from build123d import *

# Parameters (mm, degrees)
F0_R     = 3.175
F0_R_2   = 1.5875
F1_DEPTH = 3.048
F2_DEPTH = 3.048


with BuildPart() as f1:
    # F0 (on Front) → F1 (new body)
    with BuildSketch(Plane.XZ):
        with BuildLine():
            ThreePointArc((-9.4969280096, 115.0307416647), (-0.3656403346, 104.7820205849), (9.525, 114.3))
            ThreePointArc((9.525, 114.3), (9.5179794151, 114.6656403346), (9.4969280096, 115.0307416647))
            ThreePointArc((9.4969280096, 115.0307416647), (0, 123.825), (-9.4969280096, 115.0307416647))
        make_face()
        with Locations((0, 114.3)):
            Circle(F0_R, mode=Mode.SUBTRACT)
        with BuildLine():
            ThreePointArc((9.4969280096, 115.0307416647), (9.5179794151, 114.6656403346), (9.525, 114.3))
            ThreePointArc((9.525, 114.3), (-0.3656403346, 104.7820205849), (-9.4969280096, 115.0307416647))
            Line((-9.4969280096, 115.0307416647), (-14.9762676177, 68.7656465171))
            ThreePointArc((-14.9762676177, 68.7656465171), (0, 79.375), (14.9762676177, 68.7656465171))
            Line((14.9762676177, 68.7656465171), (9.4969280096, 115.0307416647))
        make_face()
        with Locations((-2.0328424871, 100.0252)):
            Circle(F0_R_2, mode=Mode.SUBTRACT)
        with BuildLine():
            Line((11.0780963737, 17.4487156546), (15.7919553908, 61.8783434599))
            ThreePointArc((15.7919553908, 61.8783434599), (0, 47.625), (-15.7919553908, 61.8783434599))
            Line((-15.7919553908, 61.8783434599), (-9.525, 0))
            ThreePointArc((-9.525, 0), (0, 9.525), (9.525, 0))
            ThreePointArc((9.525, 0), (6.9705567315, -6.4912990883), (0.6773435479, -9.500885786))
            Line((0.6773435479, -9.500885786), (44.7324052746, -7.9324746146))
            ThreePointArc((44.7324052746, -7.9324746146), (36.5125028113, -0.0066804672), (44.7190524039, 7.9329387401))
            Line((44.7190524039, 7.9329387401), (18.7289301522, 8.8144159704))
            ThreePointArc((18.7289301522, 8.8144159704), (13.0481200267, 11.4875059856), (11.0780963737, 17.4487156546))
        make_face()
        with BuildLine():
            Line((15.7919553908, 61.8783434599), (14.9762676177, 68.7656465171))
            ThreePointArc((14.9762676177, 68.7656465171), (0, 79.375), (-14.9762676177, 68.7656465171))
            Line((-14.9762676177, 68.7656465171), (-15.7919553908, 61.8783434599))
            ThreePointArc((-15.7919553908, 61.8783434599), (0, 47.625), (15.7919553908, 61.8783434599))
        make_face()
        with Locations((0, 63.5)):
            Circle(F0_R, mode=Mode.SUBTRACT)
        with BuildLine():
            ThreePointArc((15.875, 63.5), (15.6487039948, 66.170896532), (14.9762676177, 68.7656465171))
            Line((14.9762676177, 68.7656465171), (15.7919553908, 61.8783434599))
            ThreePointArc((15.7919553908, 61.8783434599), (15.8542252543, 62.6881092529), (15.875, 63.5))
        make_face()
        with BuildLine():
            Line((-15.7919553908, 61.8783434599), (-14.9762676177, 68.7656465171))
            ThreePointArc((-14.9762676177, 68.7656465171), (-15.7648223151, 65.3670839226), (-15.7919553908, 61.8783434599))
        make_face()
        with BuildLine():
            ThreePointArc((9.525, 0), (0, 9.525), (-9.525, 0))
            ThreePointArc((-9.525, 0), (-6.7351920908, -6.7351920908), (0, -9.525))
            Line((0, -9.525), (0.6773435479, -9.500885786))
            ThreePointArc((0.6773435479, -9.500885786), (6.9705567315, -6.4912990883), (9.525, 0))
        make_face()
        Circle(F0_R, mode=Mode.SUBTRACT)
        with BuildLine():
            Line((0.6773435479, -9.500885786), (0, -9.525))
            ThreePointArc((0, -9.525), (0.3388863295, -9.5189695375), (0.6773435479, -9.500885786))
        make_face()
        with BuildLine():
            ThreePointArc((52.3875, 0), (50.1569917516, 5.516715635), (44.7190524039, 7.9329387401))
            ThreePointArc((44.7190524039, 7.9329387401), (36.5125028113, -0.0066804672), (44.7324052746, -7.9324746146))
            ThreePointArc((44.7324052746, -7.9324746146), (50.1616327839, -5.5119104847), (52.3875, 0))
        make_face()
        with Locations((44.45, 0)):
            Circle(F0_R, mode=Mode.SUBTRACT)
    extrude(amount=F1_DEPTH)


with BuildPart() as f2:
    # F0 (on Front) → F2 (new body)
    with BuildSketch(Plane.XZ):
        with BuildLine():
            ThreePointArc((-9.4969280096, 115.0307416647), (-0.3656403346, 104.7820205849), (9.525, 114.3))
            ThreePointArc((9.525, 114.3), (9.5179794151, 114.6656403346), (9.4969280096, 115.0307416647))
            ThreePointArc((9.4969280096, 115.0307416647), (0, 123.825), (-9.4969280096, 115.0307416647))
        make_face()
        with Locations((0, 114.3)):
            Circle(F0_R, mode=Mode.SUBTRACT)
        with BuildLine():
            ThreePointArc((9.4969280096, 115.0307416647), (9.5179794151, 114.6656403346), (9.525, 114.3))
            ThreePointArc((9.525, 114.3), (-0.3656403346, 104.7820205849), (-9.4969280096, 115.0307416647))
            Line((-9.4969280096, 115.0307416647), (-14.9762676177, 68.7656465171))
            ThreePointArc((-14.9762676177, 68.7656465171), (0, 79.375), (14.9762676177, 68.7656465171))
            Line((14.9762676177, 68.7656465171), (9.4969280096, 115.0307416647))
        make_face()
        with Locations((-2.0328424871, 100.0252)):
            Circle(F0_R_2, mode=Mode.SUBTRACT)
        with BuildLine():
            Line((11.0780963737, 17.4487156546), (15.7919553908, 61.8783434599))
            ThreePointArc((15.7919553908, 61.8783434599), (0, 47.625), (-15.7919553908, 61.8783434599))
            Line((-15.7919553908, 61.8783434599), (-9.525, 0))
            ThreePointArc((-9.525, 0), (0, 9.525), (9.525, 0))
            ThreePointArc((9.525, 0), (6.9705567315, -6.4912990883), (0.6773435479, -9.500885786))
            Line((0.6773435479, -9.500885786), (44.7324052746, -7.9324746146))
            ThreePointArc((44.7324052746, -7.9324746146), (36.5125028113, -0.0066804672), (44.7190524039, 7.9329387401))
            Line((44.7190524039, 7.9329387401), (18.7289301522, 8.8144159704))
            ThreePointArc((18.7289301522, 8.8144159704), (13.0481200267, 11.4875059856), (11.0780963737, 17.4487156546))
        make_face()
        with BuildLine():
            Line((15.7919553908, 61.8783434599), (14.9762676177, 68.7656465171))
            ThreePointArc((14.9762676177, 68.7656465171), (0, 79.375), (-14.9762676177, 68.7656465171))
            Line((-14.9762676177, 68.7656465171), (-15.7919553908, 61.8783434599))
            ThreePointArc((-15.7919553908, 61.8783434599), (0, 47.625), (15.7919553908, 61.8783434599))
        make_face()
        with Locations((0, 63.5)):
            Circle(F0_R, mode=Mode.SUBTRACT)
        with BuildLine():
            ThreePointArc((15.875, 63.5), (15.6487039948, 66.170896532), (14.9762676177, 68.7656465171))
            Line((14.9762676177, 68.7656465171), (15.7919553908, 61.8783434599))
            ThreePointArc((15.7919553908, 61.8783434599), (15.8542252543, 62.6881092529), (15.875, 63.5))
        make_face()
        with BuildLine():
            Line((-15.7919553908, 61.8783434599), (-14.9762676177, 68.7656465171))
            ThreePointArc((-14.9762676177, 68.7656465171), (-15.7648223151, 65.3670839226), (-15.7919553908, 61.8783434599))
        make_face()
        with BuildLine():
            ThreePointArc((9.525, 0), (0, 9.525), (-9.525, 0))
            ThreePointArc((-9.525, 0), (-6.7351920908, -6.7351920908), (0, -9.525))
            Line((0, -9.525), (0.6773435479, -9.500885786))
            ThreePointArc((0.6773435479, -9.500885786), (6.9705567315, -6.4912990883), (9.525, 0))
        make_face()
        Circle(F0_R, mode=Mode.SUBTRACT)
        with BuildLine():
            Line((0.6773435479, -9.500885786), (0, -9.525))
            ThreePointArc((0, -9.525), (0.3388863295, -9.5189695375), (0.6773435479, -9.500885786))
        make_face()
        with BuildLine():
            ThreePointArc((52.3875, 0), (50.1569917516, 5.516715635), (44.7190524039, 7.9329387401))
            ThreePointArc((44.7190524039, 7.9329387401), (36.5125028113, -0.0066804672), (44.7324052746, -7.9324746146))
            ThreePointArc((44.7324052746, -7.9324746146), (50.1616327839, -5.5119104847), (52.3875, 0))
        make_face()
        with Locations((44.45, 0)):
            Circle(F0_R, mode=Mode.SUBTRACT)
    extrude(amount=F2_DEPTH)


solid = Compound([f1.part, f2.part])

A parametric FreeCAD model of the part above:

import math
import FreeCAD as App
import Part
import Sketcher

V = App.Vector
Q = App.Units.Quantity

doc = App.newDocument("Part")
params = doc.addObject("Spreadsheet::Sheet", "Params")
for row, (alias, value) in enumerate([
    ("sketch1_diameter", "0.25 in"),
    ("sketch1_diameter2", "0.125 in"),
    ("sketch1_radius", "0.375 in"),
    ("sketch1_radius2", "0.625 in"),
    ("sketch1_radius3", "0.3125 in"),
    ("pad1_length", "0.12 in"),
    ("sketch2_diameter", "0.25 in"),
    ("sketch2_diameter2", "0.125 in"),
    ("sketch2_radius", "0.375 in"),
    ("sketch2_radius2", "0.625 in"),
    ("sketch2_radius3", "0.3125 in"),
    ("pad2_length", "0.12 in"),
], start=1):
    params.set(f"A{row}", alias)
    params.set(f"B{row}", "=" + value)
    params.setAlias(f"B{row}", alias)

body = doc.addObject("PartDesign::Body", "Body")

sketch1 = body.newObject("Sketcher::SketchObject", "Sketch")
sketch1.AttachmentSupport = (doc.getObject("XZ_Plane"), [""])
sketch1.MapMode = "FlatFace"
sketch1.addGeometry([
    Part.ArcOfCircle(Part.Circle(V(0, 114.3, 0), V(0, 0, 1), 9.53), math.radians(4), math.radians(176)),
    Part.LineSegment(V(-9.5, 115.03, 0), V(-14.98, 68.77, 0)),
    Part.ArcOfCircle(Part.Circle(V(0, 63.5, 0), V(0, 0, 1), 15.87), math.radians(161), math.radians(186)),
    Part.LineSegment(V(-15.79, 61.88, 0), V(-9.53, 0, 0)),
    Part.ArcOfCircle(Part.Circle(V(0, 0, 0), V(0, 0, 1), 9.53), math.radians(180), math.radians(270)),
    Part.ArcOfCircle(Part.Circle(V(0, 0, 0), V(0, 0, 1), 9.53), math.radians(-90), math.radians(-85.92)),
    Part.LineSegment(V(0.68, -9.5, 0), V(44.73, -7.93, 0)),
    Part.ArcOfCircle(Part.Circle(V(44.45, 0, 0), V(0, 0, 1), 7.94), math.radians(-88), math.radians(0)),
    Part.ArcOfCircle(Part.Circle(V(44.45, 0, 0), V(0, 0, 1), 7.94), math.radians(0), math.radians(88)),
    Part.LineSegment(V(44.72, 7.93, 0), V(18.73, 8.81, 0)),
    Part.ArcOfCircle(Part.Circle(V(19, 16.76, 0), V(0, 0, 1), 7.95), math.radians(175), math.radians(268)),
    Part.LineSegment(V(11.08, 17.45, 0), V(15.78, 61.77, 0)),
    Part.ArcOfCircle(Part.Circle(V(0, 63.5, 0), V(0, 0, 1), 15.88), math.radians(-6.25), math.radians(-5.86)),
    Part.ArcOfCircle(Part.Circle(V(0, 63.5, 0), V(0, 0, 1), 15.88), math.radians(-6), math.radians(19)),
    Part.LineSegment(V(14.98, 68.77, 0), V(9.5, 115.03, 0)),
    Part.Circle(V(0, 0, 0), V(0, 0, 1), 3.17),
    Part.Circle(V(44.45, 0, 0), V(0, 0, 1), 3.17),
    Part.Circle(V(0, 63.5, 0), V(0, 0, 1), 3.17),
    Part.Circle(V(-2.03, 100.03, 0), V(0, 0, 1), 1.59),
    Part.Circle(V(0, 114.3, 0), V(0, 0, 1), 3.17),
], False)
sketch1.addConstraint([
    Sketcher.Constraint("Coincident", 0, 2, 1, 1),
    Sketcher.Constraint("Coincident", 1, 2, 2, 1),
    Sketcher.Constraint("Coincident", 2, 2, 3, 1),
    Sketcher.Constraint("Coincident", 3, 2, 4, 1),
    Sketcher.Constraint("Tangent", 4, 2, 5, 1),
    Sketcher.Constraint("Coincident", 5, 2, 6, 1),
    Sketcher.Constraint("Tangent", 6, 2, 7, 1),
    Sketcher.Constraint("Tangent", 7, 2, 8, 1),
    Sketcher.Constraint("Tangent", 8, 2, 9, 1),
    Sketcher.Constraint("Tangent", 9, 2, 10, 2),
    Sketcher.Constraint("Coincident", 10, 1, 11, 1),
    Sketcher.Constraint("Coincident", 11, 2, 12, 1),
    Sketcher.Constraint("Tangent", 12, 2, 13, 1),
    Sketcher.Constraint("Coincident", 13, 2, 14, 1),
    Sketcher.Constraint("Coincident", 14, 2, 0, 1),
    Sketcher.Constraint("Coincident", 4, 3, -1, 1),
    Sketcher.Constraint("Coincident", 15, 3, -1, 1),
    Sketcher.Constraint("Coincident", 12, 3, 2, 3),
    Sketcher.Constraint("Coincident", 16, 3, 7, 3),
    Sketcher.Constraint("Coincident", 17, 3, 2, 3),
    Sketcher.Constraint("Coincident", 19, 3, 0, 3),
    Sketcher.Constraint("Equal", 0, 4),
    Sketcher.Constraint("Equal", 4, 5),
    Sketcher.Constraint("Equal", 7, 8),
    Sketcher.Constraint("Equal", 2, 12),
    Sketcher.Constraint("Equal", 12, 13),
    Sketcher.Constraint("Equal", 15, 16),
    Sketcher.Constraint("Equal", 16, 17),
    Sketcher.Constraint("Equal", 17, 19),
    Sketcher.Constraint("Symmetric", 2, 2, 12, 2, -2),
    Sketcher.Constraint("Symmetric", 0, 2, 14, 2, -2),
    Sketcher.Constraint("PointOnObject", 7, 3, -1),
    Sketcher.Constraint("PointOnObject", 3, 2, -1),
    Sketcher.Constraint("PointOnObject", 4, 2, -2),
    Sketcher.Constraint("PointOnObject", 7, 2, -1),
    Sketcher.Constraint("Horizontal", 1, 2, 13, 2),
    Sketcher.Constraint("Diameter", 15, Q("0.25 in")),
    Sketcher.Constraint("Diameter", 18, Q("0.125 in")),
    Sketcher.Constraint("Radius", 0, Q("0.375 in")),
    Sketcher.Constraint("Radius", 2, Q("0.625 in")),
    Sketcher.Constraint("Radius", 7, Q("0.3125 in")),
    Sketcher.Constraint("Radius", 10, Q("0.313 in")),
    Sketcher.Constraint("DistanceY", 2, 3, 0, 3, Q("2 in")),
    Sketcher.Constraint("DistanceY", -1, 1, 0, 3, Q("4.5 in")),
    Sketcher.Constraint("DistanceX", -1, 1, 7, 3, Q("1.75 in")),
    Sketcher.Constraint("DistanceY", -1, 1, 18, 3, Q("3.938 in")),
    Sketcher.Constraint("DistanceY", 5, 2, 9, 2, 18.315302),
    Sketcher.Constraint("DistanceY", 9, 2, 10, 1, 8.6343),
    Sketcher.Constraint("Distance", 3, 62.194888),
    Sketcher.Constraint("Distance", 6, 44.082972),
    Sketcher.Constraint("Distance", 11, 44.571941),
    Sketcher.Constraint("DistanceX", 0, 2, -1, 1, 9.496928),
    Sketcher.Constraint("DistanceX", -1, 1, 9, 2, 18.72893),
    Sketcher.Constraint("DistanceX", 1, 2, 11, 2, 30.756929),
    Sketcher.Constraint("DistanceX", 18, 3, 14, 2, 11.52977),
])
sketch1.setExpression("Constraints[36]", "Params.sketch1_diameter")
sketch1.setExpression("Constraints[37]", "Params.sketch1_diameter2")
sketch1.setExpression("Constraints[38]", "Params.sketch1_radius")
sketch1.setExpression("Constraints[39]", "Params.sketch1_radius2")
sketch1.setExpression("Constraints[40]", "Params.sketch1_radius3")
pad1 = body.newObject("PartDesign::Pad", "Pad")
pad1.Profile = sketch1
pad1.setExpression("Length", "Params.pad1_length")
body2 = doc.addObject("PartDesign::Body", "Body001")

sketch2 = body2.newObject("Sketcher::SketchObject", "Sketch001")
sketch2.AttachmentSupport = (doc.getObject("XZ_Plane001"), [""])
sketch2.MapMode = "FlatFace"
sketch2.addGeometry([
    Part.ArcOfCircle(Part.Circle(V(0, 114.3, 0), V(0, 0, 1), 9.53), math.radians(4), math.radians(176)),
    Part.LineSegment(V(-9.5, 115.03, 0), V(-14.98, 68.77, 0)),
    Part.ArcOfCircle(Part.Circle(V(0, 63.5, 0), V(0, 0, 1), 15.87), math.radians(161), math.radians(186)),
    Part.LineSegment(V(-15.79, 61.88, 0), V(-9.53, 0, 0)),
    Part.ArcOfCircle(Part.Circle(V(0, 0, 0), V(0, 0, 1), 9.53), math.radians(180), math.radians(270)),
    Part.ArcOfCircle(Part.Circle(V(0, 0, 0), V(0, 0, 1), 9.53), math.radians(-90), math.radians(-85.92)),
    Part.LineSegment(V(0.68, -9.5, 0), V(44.73, -7.93, 0)),
    Part.ArcOfCircle(Part.Circle(V(44.45, 0, 0), V(0, 0, 1), 7.94), math.radians(-88), math.radians(0)),
    Part.ArcOfCircle(Part.Circle(V(44.45, 0, 0), V(0, 0, 1), 7.94), math.radians(0), math.radians(88)),
    Part.LineSegment(V(44.72, 7.93, 0), V(18.73, 8.81, 0)),
    Part.ArcOfCircle(Part.Circle(V(19, 16.76, 0), V(0, 0, 1), 7.95), math.radians(175), math.radians(268)),
    Part.LineSegment(V(11.08, 17.45, 0), V(15.78, 61.77, 0)),
    Part.ArcOfCircle(Part.Circle(V(0, 63.5, 0), V(0, 0, 1), 15.88), math.radians(-6.25), math.radians(-5.86)),
    Part.ArcOfCircle(Part.Circle(V(0, 63.5, 0), V(0, 0, 1), 15.88), math.radians(-6), math.radians(19)),
    Part.LineSegment(V(14.98, 68.77, 0), V(9.5, 115.03, 0)),
    Part.Circle(V(0, 0, 0), V(0, 0, 1), 3.17),
    Part.Circle(V(44.45, 0, 0), V(0, 0, 1), 3.17),
    Part.Circle(V(0, 63.5, 0), V(0, 0, 1), 3.17),
    Part.Circle(V(-2.03, 100.03, 0), V(0, 0, 1), 1.59),
    Part.Circle(V(0, 114.3, 0), V(0, 0, 1), 3.17),
], False)
sketch2.addConstraint([
    Sketcher.Constraint("Coincident", 0, 2, 1, 1),
    Sketcher.Constraint("Coincident", 1, 2, 2, 1),
    Sketcher.Constraint("Coincident", 2, 2, 3, 1),
    Sketcher.Constraint("Coincident", 3, 2, 4, 1),
    Sketcher.Constraint("Tangent", 4, 2, 5, 1),
    Sketcher.Constraint("Coincident", 5, 2, 6, 1),
    Sketcher.Constraint("Tangent", 6, 2, 7, 1),
    Sketcher.Constraint("Tangent", 7, 2, 8, 1),
    Sketcher.Constraint("Tangent", 8, 2, 9, 1),
    Sketcher.Constraint("Tangent", 9, 2, 10, 2),
    Sketcher.Constraint("Coincident", 10, 1, 11, 1),
    Sketcher.Constraint("Coincident", 11, 2, 12, 1),
    Sketcher.Constraint("Tangent", 12, 2, 13, 1),
    Sketcher.Constraint("Coincident", 13, 2, 14, 1),
    Sketcher.Constraint("Coincident", 14, 2, 0, 1),
    Sketcher.Constraint("Coincident", 4, 3, -1, 1),
    Sketcher.Constraint("Coincident", 15, 3, -1, 1),
    Sketcher.Constraint("Coincident", 12, 3, 2, 3),
    Sketcher.Constraint("Coincident", 16, 3, 7, 3),
    Sketcher.Constraint("Coincident", 17, 3, 2, 3),
    Sketcher.Constraint("Coincident", 19, 3, 0, 3),
    Sketcher.Constraint("Equal", 0, 4),
    Sketcher.Constraint("Equal", 4, 5),
    Sketcher.Constraint("Equal", 7, 8),
    Sketcher.Constraint("Equal", 2, 12),
    Sketcher.Constraint("Equal", 12, 13),
    Sketcher.Constraint("Equal", 15, 16),
    Sketcher.Constraint("Equal", 16, 17),
    Sketcher.Constraint("Equal", 17, 19),
    Sketcher.Constraint("Symmetric", 2, 2, 12, 2, -2),
    Sketcher.Constraint("Symmetric", 0, 2, 14, 2, -2),
    Sketcher.Constraint("PointOnObject", 7, 3, -1),
    Sketcher.Constraint("PointOnObject", 3, 2, -1),
    Sketcher.Constraint("PointOnObject", 4, 2, -2),
    Sketcher.Constraint("PointOnObject", 7, 2, -1),
    Sketcher.Constraint("Horizontal", 1, 2, 13, 2),
    Sketcher.Constraint("Diameter", 15, Q("0.25 in")),
    Sketcher.Constraint("Diameter", 18, Q("0.125 in")),
    Sketcher.Constraint("Radius", 0, Q("0.375 in")),
    Sketcher.Constraint("Radius", 2, Q("0.625 in")),
    Sketcher.Constraint("Radius", 7, Q("0.3125 in")),
    Sketcher.Constraint("Radius", 10, Q("0.313 in")),
    Sketcher.Constraint("DistanceY", 2, 3, 0, 3, Q("2 in")),
    Sketcher.Constraint("DistanceY", -1, 1, 0, 3, Q("4.5 in")),
    Sketcher.Constraint("DistanceX", -1, 1, 7, 3, Q("1.75 in")),
    Sketcher.Constraint("DistanceY", -1, 1, 18, 3, Q("3.938 in")),
    Sketcher.Constraint("DistanceY", 5, 2, 9, 2, 18.315302),
    Sketcher.Constraint("DistanceY", 9, 2, 10, 1, 8.6343),
    Sketcher.Constraint("Distance", 3, 62.194888),
    Sketcher.Constraint("Distance", 6, 44.082972),
    Sketcher.Constraint("Distance", 11, 44.571941),
    Sketcher.Constraint("DistanceX", 0, 2, -1, 1, 9.496928),
    Sketcher.Constraint("DistanceX", -1, 1, 9, 2, 18.72893),
    Sketcher.Constraint("DistanceX", 1, 2, 11, 2, 30.756929),
    Sketcher.Constraint("DistanceX", 18, 3, 14, 2, 11.52977),
])
sketch2.setExpression("Constraints[36]", "Params.sketch2_diameter")
sketch2.setExpression("Constraints[37]", "Params.sketch2_diameter2")
sketch2.setExpression("Constraints[38]", "Params.sketch2_radius")
sketch2.setExpression("Constraints[39]", "Params.sketch2_radius2")
sketch2.setExpression("Constraints[40]", "Params.sketch2_radius3")
pad2 = body2.newObject("PartDesign::Pad", "Pad001")
pad2.Profile = sketch2
pad2.setExpression("Length", "Params.pad2_length")

doc.recompute()
